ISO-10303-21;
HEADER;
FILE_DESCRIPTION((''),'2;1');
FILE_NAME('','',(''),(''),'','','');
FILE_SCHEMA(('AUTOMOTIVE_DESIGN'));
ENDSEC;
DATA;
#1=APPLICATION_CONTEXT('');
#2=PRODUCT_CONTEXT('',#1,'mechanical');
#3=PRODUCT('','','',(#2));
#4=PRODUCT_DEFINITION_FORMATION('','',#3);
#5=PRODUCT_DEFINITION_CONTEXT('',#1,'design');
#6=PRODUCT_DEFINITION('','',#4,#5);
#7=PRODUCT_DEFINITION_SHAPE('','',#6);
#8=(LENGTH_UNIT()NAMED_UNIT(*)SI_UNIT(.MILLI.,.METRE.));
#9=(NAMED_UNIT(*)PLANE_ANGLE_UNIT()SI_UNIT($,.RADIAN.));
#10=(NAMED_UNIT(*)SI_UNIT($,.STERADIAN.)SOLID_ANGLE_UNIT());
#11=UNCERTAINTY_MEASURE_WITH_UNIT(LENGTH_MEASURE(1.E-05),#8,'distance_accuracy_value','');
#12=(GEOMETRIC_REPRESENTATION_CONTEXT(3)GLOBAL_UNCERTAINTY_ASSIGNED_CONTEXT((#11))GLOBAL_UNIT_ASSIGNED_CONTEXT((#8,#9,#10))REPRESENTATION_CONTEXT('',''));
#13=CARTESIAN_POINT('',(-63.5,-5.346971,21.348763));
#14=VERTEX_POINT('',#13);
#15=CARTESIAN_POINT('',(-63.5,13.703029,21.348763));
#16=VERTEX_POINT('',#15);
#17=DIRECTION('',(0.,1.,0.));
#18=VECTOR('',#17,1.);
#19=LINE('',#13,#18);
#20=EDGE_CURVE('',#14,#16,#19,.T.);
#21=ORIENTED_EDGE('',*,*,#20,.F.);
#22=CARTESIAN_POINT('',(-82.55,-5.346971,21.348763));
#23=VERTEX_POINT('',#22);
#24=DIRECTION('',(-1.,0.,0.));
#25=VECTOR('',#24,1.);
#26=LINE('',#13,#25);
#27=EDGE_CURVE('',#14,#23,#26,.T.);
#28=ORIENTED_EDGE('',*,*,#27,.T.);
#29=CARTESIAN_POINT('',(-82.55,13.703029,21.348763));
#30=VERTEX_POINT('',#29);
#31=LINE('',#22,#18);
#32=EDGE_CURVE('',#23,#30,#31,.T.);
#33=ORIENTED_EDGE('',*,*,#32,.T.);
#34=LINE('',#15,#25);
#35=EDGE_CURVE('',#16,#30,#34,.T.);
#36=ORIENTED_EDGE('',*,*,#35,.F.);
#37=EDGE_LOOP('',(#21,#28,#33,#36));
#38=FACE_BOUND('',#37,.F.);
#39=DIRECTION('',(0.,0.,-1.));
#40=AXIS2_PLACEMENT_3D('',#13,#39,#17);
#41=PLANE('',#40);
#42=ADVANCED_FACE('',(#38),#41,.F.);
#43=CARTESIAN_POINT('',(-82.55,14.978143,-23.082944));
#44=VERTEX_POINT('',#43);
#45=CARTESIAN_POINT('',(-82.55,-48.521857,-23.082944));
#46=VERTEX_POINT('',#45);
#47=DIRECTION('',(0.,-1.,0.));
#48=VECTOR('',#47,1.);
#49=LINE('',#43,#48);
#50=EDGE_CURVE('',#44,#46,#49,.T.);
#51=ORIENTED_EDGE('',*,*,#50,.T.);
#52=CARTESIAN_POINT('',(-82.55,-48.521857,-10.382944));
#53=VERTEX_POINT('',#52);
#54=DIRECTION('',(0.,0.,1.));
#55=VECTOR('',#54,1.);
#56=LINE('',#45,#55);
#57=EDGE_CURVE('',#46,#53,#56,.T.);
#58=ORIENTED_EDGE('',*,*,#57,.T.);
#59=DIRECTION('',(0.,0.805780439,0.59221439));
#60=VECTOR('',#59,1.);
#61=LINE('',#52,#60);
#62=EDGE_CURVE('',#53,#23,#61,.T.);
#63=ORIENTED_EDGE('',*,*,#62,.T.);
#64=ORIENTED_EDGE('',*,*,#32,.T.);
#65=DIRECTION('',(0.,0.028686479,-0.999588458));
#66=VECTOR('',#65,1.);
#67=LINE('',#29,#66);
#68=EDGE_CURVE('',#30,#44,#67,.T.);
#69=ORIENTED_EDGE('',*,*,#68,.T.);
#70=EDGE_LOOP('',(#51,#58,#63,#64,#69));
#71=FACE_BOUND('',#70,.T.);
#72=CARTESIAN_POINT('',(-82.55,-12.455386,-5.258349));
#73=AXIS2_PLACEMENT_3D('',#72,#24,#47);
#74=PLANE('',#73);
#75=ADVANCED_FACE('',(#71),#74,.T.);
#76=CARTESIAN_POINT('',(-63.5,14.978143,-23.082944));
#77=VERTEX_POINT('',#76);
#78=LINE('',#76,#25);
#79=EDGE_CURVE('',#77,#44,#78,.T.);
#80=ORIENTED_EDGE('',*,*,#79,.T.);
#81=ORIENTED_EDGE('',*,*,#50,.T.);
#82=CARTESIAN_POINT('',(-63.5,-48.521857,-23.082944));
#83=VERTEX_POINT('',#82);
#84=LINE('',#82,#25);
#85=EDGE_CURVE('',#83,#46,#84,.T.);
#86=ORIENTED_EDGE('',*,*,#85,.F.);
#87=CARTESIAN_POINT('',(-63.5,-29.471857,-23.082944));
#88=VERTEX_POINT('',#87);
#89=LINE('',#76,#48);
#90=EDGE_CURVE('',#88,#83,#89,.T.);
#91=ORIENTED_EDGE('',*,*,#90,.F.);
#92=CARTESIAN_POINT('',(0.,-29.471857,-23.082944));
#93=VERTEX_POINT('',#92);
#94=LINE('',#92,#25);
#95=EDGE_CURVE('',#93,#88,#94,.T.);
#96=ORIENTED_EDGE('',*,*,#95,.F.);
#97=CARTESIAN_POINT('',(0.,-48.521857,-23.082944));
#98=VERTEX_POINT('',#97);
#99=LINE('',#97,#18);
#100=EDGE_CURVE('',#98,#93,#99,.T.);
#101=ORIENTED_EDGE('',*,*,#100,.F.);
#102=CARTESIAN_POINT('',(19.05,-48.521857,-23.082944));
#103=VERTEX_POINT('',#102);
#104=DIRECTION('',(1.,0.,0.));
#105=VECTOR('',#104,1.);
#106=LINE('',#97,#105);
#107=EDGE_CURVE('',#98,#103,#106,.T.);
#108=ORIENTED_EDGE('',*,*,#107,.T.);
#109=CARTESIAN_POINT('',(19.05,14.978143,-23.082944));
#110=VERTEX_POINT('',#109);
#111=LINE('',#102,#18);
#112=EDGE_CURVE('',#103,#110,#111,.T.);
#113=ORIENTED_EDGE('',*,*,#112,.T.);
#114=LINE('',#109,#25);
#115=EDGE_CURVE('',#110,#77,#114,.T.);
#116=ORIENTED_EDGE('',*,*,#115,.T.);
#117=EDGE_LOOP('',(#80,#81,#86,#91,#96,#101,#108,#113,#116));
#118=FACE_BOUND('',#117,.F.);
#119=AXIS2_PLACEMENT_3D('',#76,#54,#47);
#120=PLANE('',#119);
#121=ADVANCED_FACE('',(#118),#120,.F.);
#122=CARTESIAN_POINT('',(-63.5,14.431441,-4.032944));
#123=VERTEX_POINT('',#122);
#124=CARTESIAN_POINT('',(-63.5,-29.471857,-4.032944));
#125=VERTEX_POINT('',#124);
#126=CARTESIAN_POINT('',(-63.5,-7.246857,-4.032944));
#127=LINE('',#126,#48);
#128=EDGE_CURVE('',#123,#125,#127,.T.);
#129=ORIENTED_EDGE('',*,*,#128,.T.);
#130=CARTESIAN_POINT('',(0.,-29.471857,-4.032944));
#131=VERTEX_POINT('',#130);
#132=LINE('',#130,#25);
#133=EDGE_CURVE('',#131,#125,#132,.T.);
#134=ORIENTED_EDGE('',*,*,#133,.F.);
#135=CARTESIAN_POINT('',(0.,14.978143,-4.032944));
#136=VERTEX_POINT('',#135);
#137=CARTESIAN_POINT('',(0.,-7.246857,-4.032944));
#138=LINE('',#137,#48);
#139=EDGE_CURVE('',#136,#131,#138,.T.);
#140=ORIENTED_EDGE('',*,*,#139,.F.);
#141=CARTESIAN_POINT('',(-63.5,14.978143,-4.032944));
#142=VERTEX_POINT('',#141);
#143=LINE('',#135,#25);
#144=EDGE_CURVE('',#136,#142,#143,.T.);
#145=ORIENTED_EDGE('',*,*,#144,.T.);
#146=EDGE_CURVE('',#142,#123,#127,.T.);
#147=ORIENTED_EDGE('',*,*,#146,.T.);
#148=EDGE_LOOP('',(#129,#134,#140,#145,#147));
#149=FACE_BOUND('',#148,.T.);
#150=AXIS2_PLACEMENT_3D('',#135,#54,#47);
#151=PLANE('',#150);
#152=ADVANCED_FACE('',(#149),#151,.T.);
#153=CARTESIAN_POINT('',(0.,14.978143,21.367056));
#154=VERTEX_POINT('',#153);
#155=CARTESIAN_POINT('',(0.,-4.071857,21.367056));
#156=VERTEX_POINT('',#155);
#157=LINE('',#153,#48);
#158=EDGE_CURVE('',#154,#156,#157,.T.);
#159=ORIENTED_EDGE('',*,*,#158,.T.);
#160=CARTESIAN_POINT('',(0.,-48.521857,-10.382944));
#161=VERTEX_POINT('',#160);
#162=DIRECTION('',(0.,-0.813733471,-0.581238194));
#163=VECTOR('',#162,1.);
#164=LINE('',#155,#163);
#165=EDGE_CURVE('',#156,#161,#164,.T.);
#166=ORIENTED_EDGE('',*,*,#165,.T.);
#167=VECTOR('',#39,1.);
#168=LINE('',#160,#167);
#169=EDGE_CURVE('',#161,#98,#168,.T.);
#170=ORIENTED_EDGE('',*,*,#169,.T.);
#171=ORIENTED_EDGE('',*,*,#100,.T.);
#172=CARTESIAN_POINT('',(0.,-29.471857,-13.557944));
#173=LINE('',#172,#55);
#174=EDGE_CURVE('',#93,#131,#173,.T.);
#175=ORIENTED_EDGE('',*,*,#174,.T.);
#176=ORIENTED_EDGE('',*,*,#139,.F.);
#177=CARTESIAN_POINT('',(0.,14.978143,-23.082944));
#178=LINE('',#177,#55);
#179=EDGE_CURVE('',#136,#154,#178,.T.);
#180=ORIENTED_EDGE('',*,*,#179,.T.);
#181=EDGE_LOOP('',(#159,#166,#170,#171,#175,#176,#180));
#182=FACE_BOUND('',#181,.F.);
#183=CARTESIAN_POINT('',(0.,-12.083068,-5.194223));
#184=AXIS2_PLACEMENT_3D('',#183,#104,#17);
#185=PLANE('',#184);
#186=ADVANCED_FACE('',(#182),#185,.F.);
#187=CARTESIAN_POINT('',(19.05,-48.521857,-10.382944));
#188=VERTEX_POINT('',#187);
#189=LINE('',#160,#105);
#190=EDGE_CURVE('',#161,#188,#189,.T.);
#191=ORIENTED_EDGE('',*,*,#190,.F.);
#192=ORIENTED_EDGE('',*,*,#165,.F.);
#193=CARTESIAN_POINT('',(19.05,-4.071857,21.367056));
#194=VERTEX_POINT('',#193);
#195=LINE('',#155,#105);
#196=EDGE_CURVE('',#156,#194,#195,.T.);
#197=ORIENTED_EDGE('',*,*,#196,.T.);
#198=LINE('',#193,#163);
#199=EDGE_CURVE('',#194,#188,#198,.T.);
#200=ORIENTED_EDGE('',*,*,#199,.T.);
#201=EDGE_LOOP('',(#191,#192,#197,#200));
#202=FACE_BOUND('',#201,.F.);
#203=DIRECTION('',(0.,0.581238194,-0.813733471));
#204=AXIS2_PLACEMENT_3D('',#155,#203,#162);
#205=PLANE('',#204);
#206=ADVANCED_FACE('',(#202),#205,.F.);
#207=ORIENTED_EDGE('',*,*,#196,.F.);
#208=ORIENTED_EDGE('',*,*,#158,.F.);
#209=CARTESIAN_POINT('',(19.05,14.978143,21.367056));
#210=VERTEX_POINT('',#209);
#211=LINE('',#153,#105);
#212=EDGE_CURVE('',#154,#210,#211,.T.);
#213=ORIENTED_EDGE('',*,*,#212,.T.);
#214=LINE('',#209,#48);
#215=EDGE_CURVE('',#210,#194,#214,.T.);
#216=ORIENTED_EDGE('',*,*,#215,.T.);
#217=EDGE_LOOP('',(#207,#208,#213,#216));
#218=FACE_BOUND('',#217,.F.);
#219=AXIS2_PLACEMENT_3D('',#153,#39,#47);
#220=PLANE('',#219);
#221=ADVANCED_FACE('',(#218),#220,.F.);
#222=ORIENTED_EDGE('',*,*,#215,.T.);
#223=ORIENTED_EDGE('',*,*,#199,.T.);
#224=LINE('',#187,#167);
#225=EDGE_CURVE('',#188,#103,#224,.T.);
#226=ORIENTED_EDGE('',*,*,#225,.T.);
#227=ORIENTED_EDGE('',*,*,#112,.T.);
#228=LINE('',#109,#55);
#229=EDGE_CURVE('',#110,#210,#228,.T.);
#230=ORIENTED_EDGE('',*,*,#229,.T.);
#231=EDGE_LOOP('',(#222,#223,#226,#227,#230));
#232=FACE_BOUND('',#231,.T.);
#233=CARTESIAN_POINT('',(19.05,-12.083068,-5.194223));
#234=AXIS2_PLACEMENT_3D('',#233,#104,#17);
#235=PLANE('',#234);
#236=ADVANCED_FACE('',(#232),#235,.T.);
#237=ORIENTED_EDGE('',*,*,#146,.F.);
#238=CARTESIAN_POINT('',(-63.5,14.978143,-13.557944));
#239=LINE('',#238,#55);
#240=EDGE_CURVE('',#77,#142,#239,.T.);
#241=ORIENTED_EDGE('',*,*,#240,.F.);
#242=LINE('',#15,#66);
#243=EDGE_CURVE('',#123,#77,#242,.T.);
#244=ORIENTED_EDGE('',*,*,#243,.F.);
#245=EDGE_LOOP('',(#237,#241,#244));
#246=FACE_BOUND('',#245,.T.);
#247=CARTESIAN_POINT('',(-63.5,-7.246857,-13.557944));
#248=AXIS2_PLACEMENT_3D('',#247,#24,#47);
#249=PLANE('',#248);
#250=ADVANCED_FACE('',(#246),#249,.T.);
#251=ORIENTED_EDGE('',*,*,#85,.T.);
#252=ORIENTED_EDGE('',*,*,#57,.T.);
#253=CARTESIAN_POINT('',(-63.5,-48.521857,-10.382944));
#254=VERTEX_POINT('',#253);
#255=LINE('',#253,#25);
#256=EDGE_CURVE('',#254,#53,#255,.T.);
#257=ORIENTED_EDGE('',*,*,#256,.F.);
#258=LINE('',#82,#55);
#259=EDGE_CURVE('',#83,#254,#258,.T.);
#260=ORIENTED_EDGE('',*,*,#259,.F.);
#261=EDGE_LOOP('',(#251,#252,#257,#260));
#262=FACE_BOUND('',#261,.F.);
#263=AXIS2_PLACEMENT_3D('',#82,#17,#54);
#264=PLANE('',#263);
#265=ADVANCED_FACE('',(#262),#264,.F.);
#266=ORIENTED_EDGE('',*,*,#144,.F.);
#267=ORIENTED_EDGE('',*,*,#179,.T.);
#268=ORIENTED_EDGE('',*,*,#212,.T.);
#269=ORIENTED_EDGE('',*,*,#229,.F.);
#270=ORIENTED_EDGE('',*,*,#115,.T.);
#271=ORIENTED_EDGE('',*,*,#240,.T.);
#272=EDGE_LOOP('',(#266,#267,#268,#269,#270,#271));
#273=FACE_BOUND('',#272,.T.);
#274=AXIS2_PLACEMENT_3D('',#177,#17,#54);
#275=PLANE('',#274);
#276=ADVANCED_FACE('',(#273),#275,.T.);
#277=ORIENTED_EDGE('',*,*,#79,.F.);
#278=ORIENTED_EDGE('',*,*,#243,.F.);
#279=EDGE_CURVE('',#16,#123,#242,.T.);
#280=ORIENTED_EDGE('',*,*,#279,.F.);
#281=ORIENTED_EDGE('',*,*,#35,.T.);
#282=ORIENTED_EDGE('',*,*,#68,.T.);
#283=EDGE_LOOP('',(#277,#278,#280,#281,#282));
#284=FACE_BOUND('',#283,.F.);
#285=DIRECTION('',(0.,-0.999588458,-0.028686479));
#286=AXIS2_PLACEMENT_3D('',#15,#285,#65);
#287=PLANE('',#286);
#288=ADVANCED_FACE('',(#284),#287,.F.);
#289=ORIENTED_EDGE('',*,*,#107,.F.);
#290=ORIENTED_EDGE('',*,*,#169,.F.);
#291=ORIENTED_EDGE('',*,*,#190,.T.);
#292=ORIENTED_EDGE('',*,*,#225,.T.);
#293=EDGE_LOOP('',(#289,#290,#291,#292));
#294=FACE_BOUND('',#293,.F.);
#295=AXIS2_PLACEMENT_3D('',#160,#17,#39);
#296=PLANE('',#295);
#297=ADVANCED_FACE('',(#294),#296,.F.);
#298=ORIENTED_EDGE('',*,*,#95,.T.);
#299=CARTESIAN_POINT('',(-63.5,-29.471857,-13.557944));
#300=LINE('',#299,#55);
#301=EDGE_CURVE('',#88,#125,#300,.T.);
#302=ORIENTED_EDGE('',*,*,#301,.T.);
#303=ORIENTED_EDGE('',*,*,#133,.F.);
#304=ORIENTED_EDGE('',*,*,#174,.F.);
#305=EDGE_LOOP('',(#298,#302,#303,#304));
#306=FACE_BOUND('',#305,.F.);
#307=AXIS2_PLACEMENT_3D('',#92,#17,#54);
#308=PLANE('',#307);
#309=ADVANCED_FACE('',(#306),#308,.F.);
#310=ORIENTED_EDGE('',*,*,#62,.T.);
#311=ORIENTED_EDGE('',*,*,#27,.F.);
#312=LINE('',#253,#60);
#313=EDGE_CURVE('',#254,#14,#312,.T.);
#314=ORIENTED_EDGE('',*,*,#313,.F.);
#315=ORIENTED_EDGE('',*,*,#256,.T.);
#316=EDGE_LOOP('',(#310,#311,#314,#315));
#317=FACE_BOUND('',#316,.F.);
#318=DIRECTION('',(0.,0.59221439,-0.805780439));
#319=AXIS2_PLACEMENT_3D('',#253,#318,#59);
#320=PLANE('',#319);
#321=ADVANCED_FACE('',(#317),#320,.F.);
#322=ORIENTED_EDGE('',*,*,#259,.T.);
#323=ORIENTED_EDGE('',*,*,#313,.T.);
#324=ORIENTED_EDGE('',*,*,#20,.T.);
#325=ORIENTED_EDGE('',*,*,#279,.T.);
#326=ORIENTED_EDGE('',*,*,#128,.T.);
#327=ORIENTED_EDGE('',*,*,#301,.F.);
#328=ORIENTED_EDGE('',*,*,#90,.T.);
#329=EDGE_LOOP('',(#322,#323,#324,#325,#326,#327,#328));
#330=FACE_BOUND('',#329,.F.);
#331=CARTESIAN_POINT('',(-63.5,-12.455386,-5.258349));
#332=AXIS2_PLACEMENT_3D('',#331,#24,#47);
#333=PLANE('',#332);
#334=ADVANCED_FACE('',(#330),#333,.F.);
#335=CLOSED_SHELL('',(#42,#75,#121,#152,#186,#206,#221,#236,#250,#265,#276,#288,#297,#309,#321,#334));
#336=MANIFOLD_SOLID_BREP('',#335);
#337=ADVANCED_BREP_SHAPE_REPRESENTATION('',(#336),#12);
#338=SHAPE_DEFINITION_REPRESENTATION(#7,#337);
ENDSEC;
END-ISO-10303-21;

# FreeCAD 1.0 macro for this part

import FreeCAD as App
import Part
import Sketcher
from FreeCAD import Vector
Q = App.Units.Quantity


def add_polygon(sketch, points):
    """Adds a closed chain of lines whose ends are joined by coincident constraints."""
    first, n = sketch.GeometryCount, len(points)
    for a, b in zip(points, points[1:] + points[:1]):
        sketch.addGeometry(Part.LineSegment(App.Vector(*a, 0), App.Vector(*b, 0)), False)
    for i in range(n):
        sketch.addConstraint(Sketcher.Constraint("Coincident", first + i, 2, first + (i + 1) % n, 1))

doc = App.newDocument("Part")
body = doc.addObject("PartDesign::Body", "Body")

# Sketch on YZ plane
sketch1 = body.newObject("Sketcher::SketchObject", "Sketch")
sketch1.AttachmentSupport = (doc.getObject("YZ_Plane"), [""])
sketch1.MapMode = "FlatFace"
add_polygon(sketch1, [(15, 21), (-4, 21), (-49, -10), (-49, -23), (15, -23)])  # lines 0-4
sketch1.addConstraint(Sketcher.Constraint("Horizontal", 0))
sketch1.addConstraint(Sketcher.Constraint("Vertical", 2))
sketch1.addConstraint(Sketcher.Constraint("Horizontal", 3))
sketch1.addConstraint(Sketcher.Constraint("Vertical", 4))
sketch1.addConstraint(Sketcher.Constraint("DistanceX", 3, 1, 3, 2, Q("2.5 in")))
sketch1.addConstraint(Sketcher.Constraint("DistanceY", 2, 2, 2, 1, Q("0.5 in")))
sketch1.addConstraint(Sketcher.Constraint("DistanceX", 0, 2, 0, 1, Q("0.75 in")))
sketch1.addConstraint(Sketcher.Constraint("DistanceY", 4, 1, 4, 2, Q("1.75 in")))
sketch1.addConstraint(Sketcher.Constraint("DistanceX", 0, 2, -1, 1, Q("4.071857 mm")))
sketch1.addConstraint(Sketcher.Constraint("DistanceY", -1, 1, 0, 2, Q("21.367056 mm")))
pad1 = body.newObject("PartDesign::Pad", "Pad")
pad1.Profile = sketch1
pad1.Length = Q("0.75 in")

# Sketch on YZ plane
sketch2 = body.newObject("Sketcher::SketchObject", "Sketch001")
sketch2.AttachmentSupport = (doc.getObject("YZ_Plane"), [""])
sketch2.MapMode = "FlatFace"
add_polygon(sketch2, [(15, -4), (15, -23), (-29, -23), (-29, -4)])  # lines 0-3
sketch2.addConstraint(Sketcher.Constraint("Vertical", 0))
sketch2.addConstraint(Sketcher.Constraint("Horizontal", 1))
sketch2.addConstraint(Sketcher.Constraint("Vertical", 2))
sketch2.addConstraint(Sketcher.Constraint("Horizontal", 3))
sketch2.addConstraint(Sketcher.Constraint("DistanceX", 1, 2, 1, 1, Q("1.75 in")))
sketch2.addConstraint(Sketcher.Constraint("DistanceY", 0, 2, 0, 1, Q("0.75 in")))
sketch2.addConstraint(Sketcher.Constraint("DistanceX", -1, 1, 0, 2, Q("14.978143 mm")))
sketch2.addConstraint(Sketcher.Constraint("DistanceY", 0, 2, -1, 1, Q("23.082944 mm")))
pad2 = body.newObject("PartDesign::Pad", "Pad001")
pad2.Profile = sketch2
pad2.Length = Q("2.5 in")
pad2.Reversed = True

# Sketch on YZ plane
sketch3 = body.newObject("Sketcher::SketchObject", "Sketch002")
sketch3.AttachmentSupport = (doc.getObject("YZ_Plane"), [""])
sketch3.MapMode = "FlatFace"
sketch3.AttachmentOffset = App.Placement(Vector(0, 0, -2.5 * 25.4), App.Rotation())
add_polygon(sketch3, [(14, 21), (15, -23), (-49, -23), (-49, -10), (-5, 21)])  # lines 0-4
sketch3.addConstraint(Sketcher.Constraint("Horizontal", 1))
sketch3.addConstraint(Sketcher.Constraint("Vertical", 2))
sketch3.addConstraint(Sketcher.Constraint("Horizontal", 4))
sketch3.addConstraint(Sketcher.Constraint("DistanceX", 1, 2, 1, 1, Q("2.5 in")))
sketch3.addConstraint(Sketcher.Constraint("DistanceY", 2, 1, 2, 2, Q("0.5 in")))
sketch3.addConstraint(Sketcher.Constraint("DistanceX", 4, 1, 4, 2, Q("0.75 in")))
sketch3.addConstraint(Sketcher.Constraint("Distance", 0, Q("1.75 in")))
sketch3.addConstraint(Sketcher.Constraint("DistanceX", 3, 2, -1, 1, Q("5.346971 mm")))
sketch3.addConstraint(Sketcher.Constraint("Distance", 3, Q("53.581452 mm")))
sketch3.addConstraint(Sketcher.Constraint("DistanceY", 0, 2, -1, 1, Q("23.082944 mm")))
pad3 = body.newObject("PartDesign::Pad", "Pad002")
pad3.Profile = sketch3
pad3.Length = Q("0.75 in")
pad3.Reversed = True

doc.recompute()
